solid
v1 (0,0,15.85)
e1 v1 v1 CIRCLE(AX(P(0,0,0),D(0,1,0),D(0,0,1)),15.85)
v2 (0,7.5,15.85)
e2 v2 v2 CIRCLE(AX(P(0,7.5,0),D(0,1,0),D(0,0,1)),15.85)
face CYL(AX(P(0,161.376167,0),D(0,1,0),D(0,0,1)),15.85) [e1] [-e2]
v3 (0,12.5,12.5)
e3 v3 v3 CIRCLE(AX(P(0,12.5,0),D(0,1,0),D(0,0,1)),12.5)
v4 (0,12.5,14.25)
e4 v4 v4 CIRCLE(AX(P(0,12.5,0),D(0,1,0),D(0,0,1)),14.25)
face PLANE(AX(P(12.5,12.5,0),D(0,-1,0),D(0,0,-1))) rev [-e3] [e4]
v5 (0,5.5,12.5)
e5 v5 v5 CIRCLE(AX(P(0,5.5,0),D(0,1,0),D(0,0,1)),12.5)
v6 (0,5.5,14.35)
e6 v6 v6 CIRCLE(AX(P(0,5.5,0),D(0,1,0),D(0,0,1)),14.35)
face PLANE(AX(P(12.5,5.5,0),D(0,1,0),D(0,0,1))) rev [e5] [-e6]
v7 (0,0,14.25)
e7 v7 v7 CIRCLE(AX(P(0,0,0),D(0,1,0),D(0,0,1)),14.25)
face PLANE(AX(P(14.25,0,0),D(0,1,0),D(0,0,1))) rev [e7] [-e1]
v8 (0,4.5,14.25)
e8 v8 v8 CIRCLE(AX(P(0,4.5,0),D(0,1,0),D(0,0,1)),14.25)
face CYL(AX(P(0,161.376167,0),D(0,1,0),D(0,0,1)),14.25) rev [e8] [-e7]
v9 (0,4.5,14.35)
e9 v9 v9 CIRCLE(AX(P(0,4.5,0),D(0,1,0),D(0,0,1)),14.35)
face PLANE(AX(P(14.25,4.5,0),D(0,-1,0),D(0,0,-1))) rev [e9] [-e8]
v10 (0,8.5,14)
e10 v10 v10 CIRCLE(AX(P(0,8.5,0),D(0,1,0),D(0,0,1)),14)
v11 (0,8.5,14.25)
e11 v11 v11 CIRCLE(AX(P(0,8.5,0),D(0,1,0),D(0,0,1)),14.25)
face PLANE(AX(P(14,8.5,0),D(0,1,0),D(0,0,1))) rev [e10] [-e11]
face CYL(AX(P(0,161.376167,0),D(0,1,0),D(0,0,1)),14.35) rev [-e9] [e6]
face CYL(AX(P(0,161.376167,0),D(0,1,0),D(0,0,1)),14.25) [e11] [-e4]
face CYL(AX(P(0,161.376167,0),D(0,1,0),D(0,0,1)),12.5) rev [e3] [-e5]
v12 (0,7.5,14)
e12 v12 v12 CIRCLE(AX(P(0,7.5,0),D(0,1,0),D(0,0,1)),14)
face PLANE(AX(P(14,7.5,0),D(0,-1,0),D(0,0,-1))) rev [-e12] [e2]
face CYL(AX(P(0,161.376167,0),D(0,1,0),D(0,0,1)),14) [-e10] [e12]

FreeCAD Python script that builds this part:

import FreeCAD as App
import Part
import Sketcher
from FreeCAD import Vector
Q = App.Units.Quantity


def add_polygon(sketch, points):
    """Adds a closed chain of lines whose ends are joined by coincident constraints."""
    first, n = sketch.GeometryCount, len(points)
    for a, b in zip(points, points[1:] + points[:1]):
        sketch.addGeometry(Part.LineSegment(App.Vector(*a, 0), App.Vector(*b, 0)), False)
    for i in range(n):
        sketch.addConstraint(Sketcher.Constraint("Coincident", first + i, 2, first + (i + 1) % n, 1))

doc = App.newDocument("Part")
body = doc.addObject("PartDesign::Body", "Body")

sketch1 = body.newObject("Sketcher::SketchObject", "Sketch")
sketch1.AttachmentSupport = (doc.getObject("XY_Plane"), [""])
sketch1.MapMode = "FlatFace"
add_polygon(sketch1, [(14.25, 4.5), (14.25, 0), (15.85, 0), (15.85, 7.5), (14, 7.5), (14, 8.5), (14.25, 8.5), (14.25, 12.5), (12.5, 12.5), (12.5, 5.5), (14.35, 5.5), (14.35, 4.5)])
sketch1.addConstraint([
    Sketcher.Constraint("Vertical", 0),
    Sketcher.Constraint("Horizontal", 1),
    Sketcher.Constraint("Vertical", 2),
    Sketcher.Constraint("Horizontal", 3),
    Sketcher.Constraint("Vertical", 4),
    Sketcher.Constraint("Horizontal", 5),
    Sketcher.Constraint("Vertical", 6),
    Sketcher.Constraint("Horizontal", 7),
    Sketcher.Constraint("Vertical", 8),
    Sketcher.Constraint("Horizontal", 9),
    Sketcher.Constraint("Vertical", 10),
    Sketcher.Constraint("Horizontal", 11),
    Sketcher.Constraint("PointOnObject", 0, 2, -1),
    Sketcher.Constraint("Vertical", 0, 2, 5, 2),
    Sketcher.Constraint("Equal", 3, 9),
    Sketcher.Constraint("Equal", 4, 10),
    Sketcher.Constraint("DistanceY", 4, 1, 4, 2, Q("1 mm")),
    Sketcher.Constraint("DistanceY", 6, 1, 6, 2, Q("4 mm")),
    Sketcher.Constraint("DistanceY", 8, 2, 8, 1, Q("7 mm")),
    Sketcher.Constraint("DistanceX", 1, 1, 1, 2, Q("1.6 mm")),
    Sketcher.Constraint("DistanceX", 11, 2, 11, 1, Q("0.1 mm")),
    Sketcher.Constraint("DistanceY", 0, 2, 0, 1, Q("4.5 mm")),
    Sketcher.Constraint("DistanceX", -1, 1, 3, 2, Q("14 mm")),
    Sketcher.Constraint("DistanceX", 3, 2, 3, 1, Q("1.85 mm")),
])
revolution = body.newObject("PartDesign::Revolution", "Revolution")
revolution.Profile = sketch1
revolution.ReferenceAxis = (sketch1, ["V_Axis"])
revolution.Angle = 360

doc.recompute()
